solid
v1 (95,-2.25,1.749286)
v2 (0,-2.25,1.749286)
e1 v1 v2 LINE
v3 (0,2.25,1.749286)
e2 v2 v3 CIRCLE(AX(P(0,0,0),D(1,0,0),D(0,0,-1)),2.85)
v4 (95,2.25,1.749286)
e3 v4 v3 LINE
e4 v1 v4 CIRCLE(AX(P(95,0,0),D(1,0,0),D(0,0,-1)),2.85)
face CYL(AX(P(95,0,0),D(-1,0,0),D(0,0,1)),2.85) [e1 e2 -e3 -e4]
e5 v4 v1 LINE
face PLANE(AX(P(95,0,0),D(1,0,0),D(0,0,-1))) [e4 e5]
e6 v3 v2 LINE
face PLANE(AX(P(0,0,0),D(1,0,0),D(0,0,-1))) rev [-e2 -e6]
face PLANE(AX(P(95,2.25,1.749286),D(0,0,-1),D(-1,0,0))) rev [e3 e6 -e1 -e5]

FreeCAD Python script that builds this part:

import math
import FreeCAD as App
import Part
import Sketcher

doc = App.newDocument("Part")
body = doc.addObject("PartDesign::Body", "Body")

# Sketch on YZ plane
sketch1 = doc.addObject("Sketcher::SketchObject", "Sketch")
body.addObject(sketch1)
sketch1.AttachmentSupport = (doc.YZ_Plane, [""])
sketch1.MapMode = "FlatFace"
sketch1.addGeometry([
    Part.LineSegment(App.Vector(2.25, 1.749286, 0), App.Vector(-2.25, 1.749286, 0)),
    Part.ArcOfCircle(Part.Circle(App.Vector(0, 0, 0), App.Vector(0, 0, 1), 2.85), math.radians(142.136354), math.radians(397.863646)),
], False)
sketch1.addConstraint([
    Sketcher.Constraint("Coincident", 0, 1, 1, 2),
    Sketcher.Constraint("Coincident", 1, 1, 0, 2),
    Sketcher.Constraint("Horizontal", 0),
    Sketcher.Constraint("Coincident", 1, 3, -1, 1),
    Sketcher.Constraint("Radius", 1, 2.85),
    Sketcher.Constraint("DistanceX", 0, 2, 0, 1, 4.5),
])
pad1 = doc.addObject("PartDesign::Pad", "Pad")
body.addObject(pad1)
pad1.Profile = sketch1
pad1.Length = 95

doc.recompute()
